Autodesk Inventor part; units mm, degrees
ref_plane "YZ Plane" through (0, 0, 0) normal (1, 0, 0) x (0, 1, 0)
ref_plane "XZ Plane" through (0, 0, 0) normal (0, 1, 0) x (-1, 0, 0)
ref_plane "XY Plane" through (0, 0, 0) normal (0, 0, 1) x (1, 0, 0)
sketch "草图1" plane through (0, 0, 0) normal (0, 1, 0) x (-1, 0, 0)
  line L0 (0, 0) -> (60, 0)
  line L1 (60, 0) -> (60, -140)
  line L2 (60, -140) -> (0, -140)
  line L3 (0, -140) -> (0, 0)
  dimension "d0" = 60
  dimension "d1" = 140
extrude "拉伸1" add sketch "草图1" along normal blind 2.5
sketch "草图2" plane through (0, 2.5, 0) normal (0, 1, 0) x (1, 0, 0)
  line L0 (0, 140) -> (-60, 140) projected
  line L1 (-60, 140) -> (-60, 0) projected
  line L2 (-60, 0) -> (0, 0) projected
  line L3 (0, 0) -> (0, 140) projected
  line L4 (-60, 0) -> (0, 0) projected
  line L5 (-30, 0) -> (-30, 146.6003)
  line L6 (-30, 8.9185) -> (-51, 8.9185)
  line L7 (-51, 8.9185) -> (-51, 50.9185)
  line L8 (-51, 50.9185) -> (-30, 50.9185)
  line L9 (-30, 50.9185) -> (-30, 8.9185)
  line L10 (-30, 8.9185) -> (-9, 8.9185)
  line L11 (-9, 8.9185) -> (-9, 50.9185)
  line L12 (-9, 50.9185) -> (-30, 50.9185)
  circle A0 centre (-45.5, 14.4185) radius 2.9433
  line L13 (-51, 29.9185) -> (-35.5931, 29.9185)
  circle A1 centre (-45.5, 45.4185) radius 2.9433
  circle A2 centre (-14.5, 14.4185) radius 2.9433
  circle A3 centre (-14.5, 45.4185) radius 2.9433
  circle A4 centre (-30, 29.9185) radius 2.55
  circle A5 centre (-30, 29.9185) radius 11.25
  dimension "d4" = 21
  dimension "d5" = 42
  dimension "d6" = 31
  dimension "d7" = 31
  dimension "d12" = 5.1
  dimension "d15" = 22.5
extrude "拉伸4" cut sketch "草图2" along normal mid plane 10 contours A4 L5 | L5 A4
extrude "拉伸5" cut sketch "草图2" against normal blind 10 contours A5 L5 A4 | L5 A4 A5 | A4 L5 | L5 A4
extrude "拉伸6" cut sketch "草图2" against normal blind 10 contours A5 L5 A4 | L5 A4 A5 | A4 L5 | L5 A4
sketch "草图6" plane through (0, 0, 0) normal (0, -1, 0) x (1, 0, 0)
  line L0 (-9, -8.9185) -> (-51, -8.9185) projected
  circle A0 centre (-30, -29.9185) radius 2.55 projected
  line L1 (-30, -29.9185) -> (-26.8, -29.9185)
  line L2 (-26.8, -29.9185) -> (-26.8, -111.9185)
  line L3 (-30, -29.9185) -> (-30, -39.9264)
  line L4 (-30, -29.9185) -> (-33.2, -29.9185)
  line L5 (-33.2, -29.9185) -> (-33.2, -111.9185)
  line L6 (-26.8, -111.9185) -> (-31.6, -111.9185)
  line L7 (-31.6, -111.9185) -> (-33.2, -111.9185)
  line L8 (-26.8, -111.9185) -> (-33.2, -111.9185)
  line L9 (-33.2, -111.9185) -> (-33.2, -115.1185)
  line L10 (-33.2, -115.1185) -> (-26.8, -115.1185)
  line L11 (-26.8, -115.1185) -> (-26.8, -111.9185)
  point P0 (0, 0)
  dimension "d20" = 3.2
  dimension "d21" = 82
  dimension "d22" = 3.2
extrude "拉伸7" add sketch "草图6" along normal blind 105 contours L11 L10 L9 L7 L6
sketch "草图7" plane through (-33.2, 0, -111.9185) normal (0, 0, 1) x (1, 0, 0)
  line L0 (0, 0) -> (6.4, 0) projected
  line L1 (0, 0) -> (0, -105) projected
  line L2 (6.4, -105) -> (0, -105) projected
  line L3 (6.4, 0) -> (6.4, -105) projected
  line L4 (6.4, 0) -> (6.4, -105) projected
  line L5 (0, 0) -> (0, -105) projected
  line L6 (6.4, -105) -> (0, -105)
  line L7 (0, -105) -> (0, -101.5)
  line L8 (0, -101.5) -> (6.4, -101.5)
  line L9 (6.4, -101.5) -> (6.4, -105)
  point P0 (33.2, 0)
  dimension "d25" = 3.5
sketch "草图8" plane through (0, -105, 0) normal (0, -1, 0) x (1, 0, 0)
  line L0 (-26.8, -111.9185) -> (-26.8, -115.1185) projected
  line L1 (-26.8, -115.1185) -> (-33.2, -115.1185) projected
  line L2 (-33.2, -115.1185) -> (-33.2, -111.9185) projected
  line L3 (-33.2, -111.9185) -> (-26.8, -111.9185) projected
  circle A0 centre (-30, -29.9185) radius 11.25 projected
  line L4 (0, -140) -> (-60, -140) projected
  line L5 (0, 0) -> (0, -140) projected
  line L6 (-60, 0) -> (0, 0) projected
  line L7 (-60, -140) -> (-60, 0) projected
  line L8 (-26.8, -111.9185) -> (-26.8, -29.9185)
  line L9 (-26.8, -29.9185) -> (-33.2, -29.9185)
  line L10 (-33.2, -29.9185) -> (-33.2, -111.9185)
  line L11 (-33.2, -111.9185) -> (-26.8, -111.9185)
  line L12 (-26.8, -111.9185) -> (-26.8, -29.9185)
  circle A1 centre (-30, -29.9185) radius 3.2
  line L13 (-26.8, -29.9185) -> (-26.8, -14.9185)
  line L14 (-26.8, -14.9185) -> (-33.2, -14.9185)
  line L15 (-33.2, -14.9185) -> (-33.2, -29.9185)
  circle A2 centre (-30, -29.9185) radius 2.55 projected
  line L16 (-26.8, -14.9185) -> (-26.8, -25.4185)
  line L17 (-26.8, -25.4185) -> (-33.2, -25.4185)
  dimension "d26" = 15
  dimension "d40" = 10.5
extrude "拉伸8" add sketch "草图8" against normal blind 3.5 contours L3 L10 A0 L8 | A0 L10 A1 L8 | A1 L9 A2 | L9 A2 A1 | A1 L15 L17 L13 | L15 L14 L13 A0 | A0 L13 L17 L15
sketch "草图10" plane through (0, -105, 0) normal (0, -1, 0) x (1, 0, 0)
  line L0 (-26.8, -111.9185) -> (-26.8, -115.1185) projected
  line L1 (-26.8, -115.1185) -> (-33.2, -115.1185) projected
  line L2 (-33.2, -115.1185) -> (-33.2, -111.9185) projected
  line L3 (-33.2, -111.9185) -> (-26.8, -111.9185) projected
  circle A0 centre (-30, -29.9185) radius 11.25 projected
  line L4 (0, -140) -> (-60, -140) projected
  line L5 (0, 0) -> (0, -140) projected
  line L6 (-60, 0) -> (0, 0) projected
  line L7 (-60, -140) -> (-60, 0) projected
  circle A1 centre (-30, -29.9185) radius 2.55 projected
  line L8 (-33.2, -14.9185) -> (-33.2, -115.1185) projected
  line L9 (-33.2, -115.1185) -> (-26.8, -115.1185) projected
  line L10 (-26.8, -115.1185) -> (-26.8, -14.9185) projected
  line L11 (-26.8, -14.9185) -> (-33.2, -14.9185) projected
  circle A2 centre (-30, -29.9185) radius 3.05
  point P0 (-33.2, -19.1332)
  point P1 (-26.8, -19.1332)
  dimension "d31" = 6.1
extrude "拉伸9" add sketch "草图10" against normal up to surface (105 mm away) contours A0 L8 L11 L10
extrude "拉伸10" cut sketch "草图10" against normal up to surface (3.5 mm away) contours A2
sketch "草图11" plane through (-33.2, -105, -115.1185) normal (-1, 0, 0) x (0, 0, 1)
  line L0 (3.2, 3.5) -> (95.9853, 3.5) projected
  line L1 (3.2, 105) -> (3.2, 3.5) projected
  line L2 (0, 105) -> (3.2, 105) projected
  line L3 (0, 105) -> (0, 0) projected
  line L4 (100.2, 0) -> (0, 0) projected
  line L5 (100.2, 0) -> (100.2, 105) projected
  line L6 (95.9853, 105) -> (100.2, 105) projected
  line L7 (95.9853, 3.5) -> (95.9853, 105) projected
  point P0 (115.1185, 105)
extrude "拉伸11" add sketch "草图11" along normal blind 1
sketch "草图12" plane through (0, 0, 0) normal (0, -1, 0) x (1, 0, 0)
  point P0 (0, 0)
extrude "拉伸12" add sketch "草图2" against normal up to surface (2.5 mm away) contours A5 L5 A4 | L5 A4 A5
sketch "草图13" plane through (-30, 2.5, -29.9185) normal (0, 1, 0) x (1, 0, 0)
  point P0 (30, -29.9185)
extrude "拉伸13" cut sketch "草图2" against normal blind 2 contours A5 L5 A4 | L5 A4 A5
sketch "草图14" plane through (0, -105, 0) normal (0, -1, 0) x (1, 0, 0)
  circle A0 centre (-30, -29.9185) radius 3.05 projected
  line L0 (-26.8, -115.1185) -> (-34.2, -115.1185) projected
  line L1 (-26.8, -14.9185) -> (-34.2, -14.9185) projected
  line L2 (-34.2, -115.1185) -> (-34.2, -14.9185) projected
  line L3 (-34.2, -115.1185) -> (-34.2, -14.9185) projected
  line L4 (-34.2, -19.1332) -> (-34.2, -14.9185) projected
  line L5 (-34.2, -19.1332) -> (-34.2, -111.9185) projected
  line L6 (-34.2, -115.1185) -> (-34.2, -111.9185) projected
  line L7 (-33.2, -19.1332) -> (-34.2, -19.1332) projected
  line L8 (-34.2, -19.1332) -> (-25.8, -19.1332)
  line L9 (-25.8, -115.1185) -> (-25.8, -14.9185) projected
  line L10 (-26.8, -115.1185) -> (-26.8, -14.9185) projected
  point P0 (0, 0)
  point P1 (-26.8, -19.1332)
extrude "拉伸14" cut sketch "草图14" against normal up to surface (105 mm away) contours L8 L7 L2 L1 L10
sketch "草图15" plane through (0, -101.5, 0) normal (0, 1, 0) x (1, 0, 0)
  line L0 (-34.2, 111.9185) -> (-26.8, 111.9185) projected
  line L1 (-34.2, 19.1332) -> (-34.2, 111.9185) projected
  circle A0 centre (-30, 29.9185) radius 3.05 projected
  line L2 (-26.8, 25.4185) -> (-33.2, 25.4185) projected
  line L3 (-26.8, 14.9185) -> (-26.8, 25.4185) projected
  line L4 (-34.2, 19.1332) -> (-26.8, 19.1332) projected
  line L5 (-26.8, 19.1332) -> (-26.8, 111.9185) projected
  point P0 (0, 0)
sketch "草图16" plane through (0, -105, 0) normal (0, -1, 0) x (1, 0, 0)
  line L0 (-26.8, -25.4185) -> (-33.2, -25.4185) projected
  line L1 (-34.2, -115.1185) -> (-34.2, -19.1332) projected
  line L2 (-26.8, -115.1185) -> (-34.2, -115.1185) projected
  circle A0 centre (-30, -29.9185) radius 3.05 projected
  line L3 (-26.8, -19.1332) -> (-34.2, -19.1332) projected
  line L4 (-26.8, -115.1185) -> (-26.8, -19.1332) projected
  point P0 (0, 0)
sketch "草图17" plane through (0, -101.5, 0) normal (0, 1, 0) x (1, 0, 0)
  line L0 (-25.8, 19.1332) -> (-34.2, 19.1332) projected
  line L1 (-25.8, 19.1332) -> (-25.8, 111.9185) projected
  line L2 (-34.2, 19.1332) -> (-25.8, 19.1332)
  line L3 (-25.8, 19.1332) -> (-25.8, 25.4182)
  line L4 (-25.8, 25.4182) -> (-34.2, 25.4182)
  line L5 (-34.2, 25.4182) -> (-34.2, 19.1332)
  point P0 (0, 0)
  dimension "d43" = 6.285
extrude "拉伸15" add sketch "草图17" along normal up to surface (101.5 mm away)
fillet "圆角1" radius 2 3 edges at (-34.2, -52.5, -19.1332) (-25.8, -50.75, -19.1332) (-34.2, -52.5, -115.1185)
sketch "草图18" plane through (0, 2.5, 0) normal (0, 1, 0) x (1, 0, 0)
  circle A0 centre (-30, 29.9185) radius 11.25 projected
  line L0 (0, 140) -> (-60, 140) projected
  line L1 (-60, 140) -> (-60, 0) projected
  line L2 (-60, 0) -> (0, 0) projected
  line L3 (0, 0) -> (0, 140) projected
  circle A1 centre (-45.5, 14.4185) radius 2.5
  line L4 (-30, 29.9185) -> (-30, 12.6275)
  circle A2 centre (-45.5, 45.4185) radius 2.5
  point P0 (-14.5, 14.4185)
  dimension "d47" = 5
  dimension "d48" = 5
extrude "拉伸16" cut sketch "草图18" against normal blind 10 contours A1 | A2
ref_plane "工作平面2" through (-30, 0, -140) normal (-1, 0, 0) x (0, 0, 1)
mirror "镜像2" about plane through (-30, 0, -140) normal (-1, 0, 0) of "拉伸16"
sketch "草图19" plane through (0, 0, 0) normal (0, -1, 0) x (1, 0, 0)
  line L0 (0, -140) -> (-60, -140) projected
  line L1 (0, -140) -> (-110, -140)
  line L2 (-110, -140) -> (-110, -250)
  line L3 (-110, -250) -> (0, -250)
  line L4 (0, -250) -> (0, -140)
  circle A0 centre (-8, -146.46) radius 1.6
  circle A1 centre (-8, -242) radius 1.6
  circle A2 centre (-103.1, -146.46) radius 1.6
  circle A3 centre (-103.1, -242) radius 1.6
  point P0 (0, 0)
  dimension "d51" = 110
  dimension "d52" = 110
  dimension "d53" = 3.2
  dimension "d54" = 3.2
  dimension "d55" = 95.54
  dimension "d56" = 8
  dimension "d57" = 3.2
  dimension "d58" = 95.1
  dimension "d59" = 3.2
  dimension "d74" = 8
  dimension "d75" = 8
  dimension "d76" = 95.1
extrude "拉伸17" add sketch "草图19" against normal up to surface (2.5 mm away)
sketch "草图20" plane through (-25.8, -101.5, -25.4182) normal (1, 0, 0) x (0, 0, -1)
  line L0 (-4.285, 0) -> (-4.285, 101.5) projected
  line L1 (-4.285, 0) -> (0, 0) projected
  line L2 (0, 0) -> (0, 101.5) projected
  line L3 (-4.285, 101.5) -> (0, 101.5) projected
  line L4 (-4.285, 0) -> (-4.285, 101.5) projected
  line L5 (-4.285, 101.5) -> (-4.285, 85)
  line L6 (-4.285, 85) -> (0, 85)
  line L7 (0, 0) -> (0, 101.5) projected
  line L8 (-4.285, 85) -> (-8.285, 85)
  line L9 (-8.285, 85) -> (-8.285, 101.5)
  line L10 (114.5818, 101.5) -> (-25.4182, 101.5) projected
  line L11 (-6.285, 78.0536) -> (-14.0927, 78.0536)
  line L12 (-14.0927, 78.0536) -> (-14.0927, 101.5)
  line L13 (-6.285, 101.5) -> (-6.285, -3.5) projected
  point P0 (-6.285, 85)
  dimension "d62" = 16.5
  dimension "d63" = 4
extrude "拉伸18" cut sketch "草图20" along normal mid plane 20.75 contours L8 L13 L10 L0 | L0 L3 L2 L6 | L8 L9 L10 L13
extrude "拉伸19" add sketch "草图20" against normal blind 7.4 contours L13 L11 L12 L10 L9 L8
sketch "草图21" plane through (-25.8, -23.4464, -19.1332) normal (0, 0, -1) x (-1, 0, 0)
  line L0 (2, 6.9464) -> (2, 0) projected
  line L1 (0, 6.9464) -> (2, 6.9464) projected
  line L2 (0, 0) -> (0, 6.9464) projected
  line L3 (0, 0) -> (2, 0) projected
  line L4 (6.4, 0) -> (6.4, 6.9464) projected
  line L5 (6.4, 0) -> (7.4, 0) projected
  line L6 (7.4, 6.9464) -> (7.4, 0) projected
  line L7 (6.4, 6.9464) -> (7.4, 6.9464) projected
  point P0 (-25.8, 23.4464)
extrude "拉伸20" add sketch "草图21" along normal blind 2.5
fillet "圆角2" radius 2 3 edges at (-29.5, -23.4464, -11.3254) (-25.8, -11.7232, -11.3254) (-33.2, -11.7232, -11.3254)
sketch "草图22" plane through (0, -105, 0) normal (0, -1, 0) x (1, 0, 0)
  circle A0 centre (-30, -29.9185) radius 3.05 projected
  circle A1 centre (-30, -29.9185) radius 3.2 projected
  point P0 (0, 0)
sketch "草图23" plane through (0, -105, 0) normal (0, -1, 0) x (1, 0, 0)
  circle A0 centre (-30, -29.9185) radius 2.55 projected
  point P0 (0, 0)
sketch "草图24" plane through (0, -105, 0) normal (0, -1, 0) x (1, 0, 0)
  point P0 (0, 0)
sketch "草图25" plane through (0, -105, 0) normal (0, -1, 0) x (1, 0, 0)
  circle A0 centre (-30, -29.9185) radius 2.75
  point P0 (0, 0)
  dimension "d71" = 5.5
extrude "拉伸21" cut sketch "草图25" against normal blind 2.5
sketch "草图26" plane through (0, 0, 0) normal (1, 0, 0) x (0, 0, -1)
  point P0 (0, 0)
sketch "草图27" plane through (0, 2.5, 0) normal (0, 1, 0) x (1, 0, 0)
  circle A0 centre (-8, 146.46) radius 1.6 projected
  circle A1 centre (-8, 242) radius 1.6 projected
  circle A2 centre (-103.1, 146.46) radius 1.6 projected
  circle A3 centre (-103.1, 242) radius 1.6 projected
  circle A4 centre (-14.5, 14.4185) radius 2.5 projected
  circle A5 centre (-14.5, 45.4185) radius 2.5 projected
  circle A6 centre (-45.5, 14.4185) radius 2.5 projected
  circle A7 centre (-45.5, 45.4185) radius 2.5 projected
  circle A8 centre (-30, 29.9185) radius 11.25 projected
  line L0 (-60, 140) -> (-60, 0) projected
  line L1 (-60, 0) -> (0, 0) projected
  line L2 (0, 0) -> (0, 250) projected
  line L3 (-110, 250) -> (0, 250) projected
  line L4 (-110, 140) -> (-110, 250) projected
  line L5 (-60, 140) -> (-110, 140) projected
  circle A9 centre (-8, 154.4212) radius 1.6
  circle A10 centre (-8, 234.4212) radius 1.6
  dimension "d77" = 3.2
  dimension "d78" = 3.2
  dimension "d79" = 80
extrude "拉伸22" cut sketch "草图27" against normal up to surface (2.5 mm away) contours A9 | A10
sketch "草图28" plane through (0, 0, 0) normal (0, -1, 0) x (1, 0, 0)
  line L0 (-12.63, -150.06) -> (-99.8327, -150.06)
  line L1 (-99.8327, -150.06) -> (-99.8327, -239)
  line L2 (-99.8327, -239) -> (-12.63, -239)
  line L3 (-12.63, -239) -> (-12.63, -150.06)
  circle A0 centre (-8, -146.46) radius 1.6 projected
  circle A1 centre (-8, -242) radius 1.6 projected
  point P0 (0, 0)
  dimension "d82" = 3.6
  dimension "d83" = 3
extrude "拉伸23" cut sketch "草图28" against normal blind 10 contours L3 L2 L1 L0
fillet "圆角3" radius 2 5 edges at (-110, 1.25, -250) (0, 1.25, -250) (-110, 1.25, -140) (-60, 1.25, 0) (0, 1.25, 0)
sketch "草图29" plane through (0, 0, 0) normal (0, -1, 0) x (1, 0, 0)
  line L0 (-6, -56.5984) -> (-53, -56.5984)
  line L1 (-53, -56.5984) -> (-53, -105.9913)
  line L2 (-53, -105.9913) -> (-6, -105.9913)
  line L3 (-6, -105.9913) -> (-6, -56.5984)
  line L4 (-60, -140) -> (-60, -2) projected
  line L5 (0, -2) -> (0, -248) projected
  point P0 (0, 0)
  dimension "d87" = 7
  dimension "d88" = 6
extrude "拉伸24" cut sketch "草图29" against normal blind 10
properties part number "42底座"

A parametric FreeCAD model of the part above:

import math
import FreeCAD as App
import Part
import Sketcher

V = App.Vector
Q = App.Units.Quantity


def edges_at(feature, points):
    """Names of the edges that pass closest to the given points."""
    edges = feature.Shape.Edges
    near = lambda p: min(range(len(edges)), key=lambda i: edges[i].distToShape(Part.Vertex(*p))[0])
    return sorted({f"Edge{near(p) + 1}" for p in points})

doc = App.newDocument("Part")
body = doc.addObject("PartDesign::Body", "Body")

sketch1 = body.newObject("Sketcher::SketchObject", "Sketch")
sketch1.AttachmentSupport = (doc.getObject("XZ_Plane"), [""])
sketch1.MapMode = "FlatFace"
sketch1.addGeometry([
    Part.LineSegment(V(-60, 0, 0), V(0, 0, 0)),
    Part.LineSegment(V(0, 0, 0), V(0, -140, 0)),
    Part.LineSegment(V(0, -140, 0), V(-60, -140, 0)),
    Part.LineSegment(V(-60, -140, 0), V(-60, 0, 0)),
], False)
sketch1.addConstraint([
    Sketcher.Constraint("Coincident", 0, 2, 1, 1),
    Sketcher.Constraint("Coincident", 1, 2, 2, 1),
    Sketcher.Constraint("Coincident", 2, 2, 3, 1),
    Sketcher.Constraint("Coincident", 3, 2, 0, 1),
    Sketcher.Constraint("Horizontal", 0),
    Sketcher.Constraint("Vertical", 1),
    Sketcher.Constraint("Horizontal", 2),
    Sketcher.Constraint("Vertical", 3),
    Sketcher.Constraint("Coincident", 0, 2, -1, 1),
    Sketcher.Constraint("DistanceX", 0, 1, 0, 2, Q("60 mm")),
    Sketcher.Constraint("DistanceY", 1, 2, 1, 1, Q("140 mm")),
])
pad1 = body.newObject("PartDesign::Pad", "Pad")
pad1.Profile = sketch1
pad1.Length = 2.5
pad1.Reversed = True

sketch2 = body.newObject("Sketcher::SketchObject", "Sketch001")
sketch2.AttachmentSupport = (doc.getObject("XZ_Plane"), [""])
sketch2.MapMode = "FlatFace"
sketch2.AttachmentOffset = App.Placement(V(0, 0, -2.5), App.Rotation())
sketch2.addGeometry(Part.Circle(V(-30, -29.9, 0), V(0, 0, 1), 2.5), False)
sketch2.addConstraint([
    Sketcher.Constraint("Diameter", 0, Q("5.1 mm")),
    Sketcher.Constraint("DistanceX", 0, 3, -1, 1, Q("30 mm")),
    Sketcher.Constraint("DistanceY", 0, 3, -1, 1, Q("29.9185 mm")),
])
pocket1 = body.newObject("PartDesign::Pocket", "Pocket")
pocket1.Profile = sketch2
pocket1.Length = 10
pocket1.Midplane = True

sketch3 = body.newObject("Sketcher::SketchObject", "Sketch002")
sketch3.AttachmentSupport = (doc.getObject("XZ_Plane"), [""])
sketch3.MapMode = "FlatFace"
sketch3.AttachmentOffset = App.Placement(V(0, 0, -2.5), App.Rotation())
sketch3.addGeometry(Part.Circle(V(-30, -30, 0), V(0, 0, 1), 11), False)
sketch3.addConstraint([
    Sketcher.Constraint("Diameter", 0, Q("22.5 mm")),
    Sketcher.Constraint("DistanceX", 0, 3, -1, 1, Q("30 mm")),
    Sketcher.Constraint("DistanceY", 0, 3, -1, 1, Q("29.9185 mm")),
])
pocket2 = body.newObject("PartDesign::Pocket", "Pocket001")
pocket2.Profile = sketch3
pocket2.Length = 10
pocket2.Reversed = True

sketch4 = body.newObject("Sketcher::SketchObject", "Sketch003")
sketch4.AttachmentSupport = (doc.getObject("XZ_Plane"), [""])
sketch4.MapMode = "FlatFace"
sketch4.AttachmentOffset = App.Placement(V(0, 0, -2.5), App.Rotation())
sketch4.addGeometry(Part.Circle(V(-30, -30, 0), V(0, 0, 1), 11), False)
sketch4.addConstraint([
    Sketcher.Constraint("Diameter", 0, Q("22.5 mm")),
    Sketcher.Constraint("DistanceX", 0, 3, -1, 1, Q("30 mm")),
    Sketcher.Constraint("DistanceY", 0, 3, -1, 1, Q("29.9185 mm")),
])
pocket3 = body.newObject("PartDesign::Pocket", "Pocket002")
pocket3.Profile = sketch4
pocket3.Length = 10
pocket3.Reversed = True

sketch5 = body.newObject("Sketcher::SketchObject", "Sketch004")
sketch5.AttachmentSupport = (doc.getObject("XZ_Plane"), [""])
sketch5.MapMode = "FlatFace"
sketch5.addGeometry([
    Part.LineSegment(V(-26.8, -115.1, 0), V(-26.8, -111.9, 0)),
    Part.LineSegment(V(-26.8, -111.9, 0), V(-33.2, -111.9, 0)),
    Part.LineSegment(V(-33.2, -111.9, 0), V(-33.2, -115.1, 0)),
    Part.LineSegment(V(-33.2, -115.1, 0), V(-26.8, -115.1, 0)),
], False)
sketch5.addConstraint([
    Sketcher.Constraint("Coincident", 0, 2, 1, 1),
    Sketcher.Constraint("Coincident", 1, 2, 2, 1),
    Sketcher.Constraint("Coincident", 2, 2, 3, 1),
    Sketcher.Constraint("Coincident", 3, 2, 0, 1),
    Sketcher.Constraint("Vertical", 0),
    Sketcher.Constraint("Horizontal", 1),
    Sketcher.Constraint("Vertical", 2),
    Sketcher.Constraint("Horizontal", 3),
    Sketcher.Constraint("DistanceY", 0, 1, 0, 2, Q("3.2 mm")),
    Sketcher.Constraint("DistanceX", 1, 2, 1, 1, Q("6.4 mm")),
    Sketcher.Constraint("DistanceX", 0, 2, -1, 1, Q("26.8 mm")),
    Sketcher.Constraint("DistanceY", 0, 2, -1, 1, Q("111.9185 mm")),
])
pad2 = body.newObject("PartDesign::Pad", "Pad001")
pad2.Profile = sketch5
pad2.Length = 105

sketch6 = body.newObject("Sketcher::SketchObject", "Sketch005")
sketch6.AttachmentSupport = (doc.getObject("XZ_Plane"), [""])
sketch6.MapMode = "FlatFace"
sketch6.AttachmentOffset = App.Placement(V(0, 0, 105), App.Rotation())
sketch6.addGeometry([
    Part.LineSegment(V(-33.2, -111.9, 0), V(-26.8, -111.9, 0)),
    Part.LineSegment(V(-26.8, -111.9, 0), V(-26.8, -14.9, 0)),
    Part.LineSegment(V(-26.8, -14.9, 0), V(-33.2, -14.9, 0)),
    Part.LineSegment(V(-33.2, -14.9, 0), V(-33.2, -111.9, 0)),
    Part.Circle(V(-30, -29.9, 0), V(0, 0, 1), 2.5),
], False)
sketch6.addConstraint([
    Sketcher.Constraint("Coincident", 0, 2, 1, 1),
    Sketcher.Constraint("Coincident", 1, 2, 2, 1),
    Sketcher.Constraint("Coincident", 2, 2, 3, 1),
    Sketcher.Constraint("Coincident", 3, 2, 0, 1),
    Sketcher.Constraint("Horizontal", 0),
    Sketcher.Constraint("Vertical", 1),
    Sketcher.Constraint("Horizontal", 2),
    Sketcher.Constraint("Vertical", 3),
    Sketcher.Constraint("DistanceY", 4, 3, 1, 2, Q("15 mm")),
    Sketcher.Constraint("Diameter", 4, Q("5.1 mm")),
    Sketcher.Constraint("DistanceY", 1, 1, 1, 2, Q("97 mm")),
    Sketcher.Constraint("DistanceX", 0, 1, 0, 2, Q("6.4 mm")),
    Sketcher.Constraint("DistanceX", 4, 3, -1, 1, Q("30 mm")),
    Sketcher.Constraint("DistanceX", 0, 2, -1, 1, Q("26.8 mm")),
    Sketcher.Constraint("DistanceY", 4, 3, -1, 1, Q("29.9185 mm")),
])
pad3 = body.newObject("PartDesign::Pad", "Pad002")
pad3.Profile = sketch6
pad3.Length = 3.5
pad3.Reversed = True

sketch7 = body.newObject("Sketcher::SketchObject", "Sketch006")
sketch7.AttachmentSupport = (doc.getObject("XZ_Plane"), [""])
sketch7.MapMode = "FlatFace"
sketch7.AttachmentOffset = App.Placement(V(0, 0, 105), App.Rotation())
sketch7.addGeometry([
    Part.ArcOfCircle(Part.Circle(V(-30, -29.9, 0), V(0, 0, 1), 11.2), math.radians(73), math.radians(107)),
    Part.LineSegment(V(-26.8, -19.1, 0), V(-26.8, -14.9, 0)),
    Part.LineSegment(V(-26.8, -14.9, 0), V(-33.2, -14.9, 0)),
    Part.LineSegment(V(-33.2, -14.9, 0), V(-33.2, -19.1, 0)),
], False)
sketch7.addConstraint([
    Sketcher.Constraint("Coincident", 0, 1, 1, 1),
    Sketcher.Constraint("Coincident", 1, 2, 2, 1),
    Sketcher.Constraint("Coincident", 2, 2, 3, 1),
    Sketcher.Constraint("Coincident", 3, 2, 0, 2),
    Sketcher.Constraint("Vertical", 1),
    Sketcher.Constraint("Horizontal", 2),
    Sketcher.Constraint("Vertical", 3),
    Sketcher.Constraint("Horizontal", 0, 1, 3, 2),
    Sketcher.Constraint("Radius", 0, Q("11.25 mm")),
    Sketcher.Constraint("DistanceX", 2, 2, 2, 1, Q("6.4 mm")),
    Sketcher.Constraint("DistanceX", 0, 3, -1, 1, Q("30 mm")),
    Sketcher.Constraint("DistanceY", 0, 3, 1, 2, Q("15 mm")),
    Sketcher.Constraint("DistanceY", 0, 3, -1, 1, Q("29.9185 mm")),
])
pad4 = body.newObject("PartDesign::Pad", "Pad003")
pad4.Profile = sketch7
pad4.Length = 105
pad4.Reversed = True

sketch8 = body.newObject("Sketcher::SketchObject", "Sketch007")
sketch8.AttachmentSupport = (doc.getObject("XZ_Plane"), [""])
sketch8.MapMode = "FlatFace"
sketch8.AttachmentOffset = App.Placement(V(0, 0, 105), App.Rotation())
sketch8.addGeometry([
    Part.Circle(V(-30, -29.9, 0), V(0, 0, 1), 3),
    Part.Circle(V(-30, -29.9, 0), V(0, 0, 1), 2.5),
], False)
sketch8.addConstraint([
    Sketcher.Constraint("Coincident", 1, 3, 0, 3),
    Sketcher.Constraint("Diameter", 0, Q("6.1 mm")),
    Sketcher.Constraint("Diameter", 1, Q("5.1 mm")),
    Sketcher.Constraint("DistanceX", 0, 3, -1, 1, Q("30 mm")),
    Sketcher.Constraint("DistanceY", 0, 3, -1, 1, Q("29.9185 mm")),
])
pocket4 = body.newObject("PartDesign::Pocket", "Pocket003")
pocket4.Profile = sketch8
pocket4.Length = 3.5

sketch9 = body.newObject("Sketcher::SketchObject", "Sketch008")
sketch9.AttachmentSupport = (doc.getObject("YZ_Plane"), [""])
sketch9.MapMode = "FlatFace"
sketch9.AttachmentOffset = App.Placement(V(0, 0, -33.2), App.Rotation())
sketch9.addGeometry([
    Part.LineSegment(V(-101.5, -19.1, 0), V(-101.5, -111.9, 0)),
    Part.LineSegment(V(-101.5, -111.9, 0), V(0, -111.9, 0)),
    Part.LineSegment(V(0, -111.9, 0), V(0, -115.1, 0)),
    Part.LineSegment(V(0, -115.1, 0), V(-105, -115.1, 0)),
    Part.LineSegment(V(-105, -115.1, 0), V(-105, -14.9, 0)),
    Part.LineSegment(V(-105, -14.9, 0), V(0, -14.9, 0)),
    Part.LineSegment(V(0, -14.9, 0), V(0, -19.1, 0)),
    Part.LineSegment(V(0, -19.1, 0), V(-101.5, -19.1, 0)),
], False)
sketch9.addConstraint([
    Sketcher.Constraint("Coincident", 0, 2, 1, 1),
    Sketcher.Constraint("Coincident", 1, 2, 2, 1),
    Sketcher.Constraint("Coincident", 2, 2, 3, 1),
    Sketcher.Constraint("Coincident", 3, 2, 4, 1),
    Sketcher.Constraint("Coincident", 4, 2, 5, 1),
    Sketcher.Constraint("Coincident", 5, 2, 6, 1),
    Sketcher.Constraint("Coincident", 6, 2, 7, 1),
    Sketcher.Constraint("Coincident", 7, 2, 0, 1),
    Sketcher.Constraint("Vertical", 0),
    Sketcher.Constraint("Horizontal", 1),
    Sketcher.Constraint("Vertical", 2),
    Sketcher.Constraint("Horizontal", 3),
    Sketcher.Constraint("Vertical", 4),
    Sketcher.Constraint("Horizontal", 5),
    Sketcher.Constraint("Vertical", 6),
    Sketcher.Constraint("Horizontal", 7),
    Sketcher.Constraint("PointOnObject", 1, 2, -2),
    Sketcher.Constraint("PointOnObject", 5, 2, -2),
    Sketcher.Constraint("DistanceX", 3, 2, 3, 1, Q("105 mm")),
    Sketcher.Constraint("DistanceX", 1, 1, 1, 2, Q("101.5 mm")),
    Sketcher.Constraint("DistanceY", 2, 2, 2, 1, Q("3.2 mm")),
    Sketcher.Constraint("DistanceY", 4, 1, 4, 2, Q("100.2 mm")),
    Sketcher.Constraint("DistanceY", 0, 2, 0, 1, Q("92.7853 mm")),
    Sketcher.Constraint("DistanceY", 0, 2, -1, 1, Q("111.9185 mm")),
])
pad5 = body.newObject("PartDesign::Pad", "Pad004")
pad5.Profile = sketch9
pad5.Length = 1
pad5.Reversed = True

sketch10 = body.newObject("Sketcher::SketchObject", "Sketch009")
sketch10.AttachmentSupport = (doc.getObject("XZ_Plane"), [""])
sketch10.MapMode = "FlatFace"
sketch10.AttachmentOffset = App.Placement(V(0, 0, -2.5), App.Rotation())
sketch10.addGeometry([
    Part.Circle(V(-30, -29.9, 0), V(0, 0, 1), 11.2),
    Part.Circle(V(-30, -29.9, 0), V(0, 0, 1), 2.5),
], False)
sketch10.addConstraint([
    Sketcher.Constraint("Coincident", 1, 3, 0, 3),
    Sketcher.Constraint("Diameter", 0, Q("22.5 mm")),
    Sketcher.Constraint("Diameter", 1, Q("5.1 mm")),
    Sketcher.Constraint("DistanceX", 0, 3, -1, 1, Q("30 mm")),
    Sketcher.Constraint("DistanceY", 0, 3, -1, 1, Q("29.9185 mm")),
])
pad6 = body.newObject("PartDesign::Pad", "Pad005")
pad6.Profile = sketch10
pad6.Length = 2.5

sketch11 = body.newObject("Sketcher::SketchObject", "Sketch010")
sketch11.AttachmentSupport = (doc.getObject("XZ_Plane"), [""])
sketch11.MapMode = "FlatFace"
sketch11.AttachmentOffset = App.Placement(V(0, 0, -2.5), App.Rotation())
sketch11.addGeometry([
    Part.Circle(V(-30, -29.9, 0), V(0, 0, 1), 11.2),
    Part.Circle(V(-30, -29.9, 0), V(0, 0, 1), 2.5),
], False)
sketch11.addConstraint([
    Sketcher.Constraint("Coincident", 1, 3, 0, 3),
    Sketcher.Constraint("Diameter", 0, Q("22.5 mm")),
    Sketcher.Constraint("Diameter", 1, Q("5.1 mm")),
    Sketcher.Constraint("DistanceX", 0, 3, -1, 1, Q("30 mm")),
    Sketcher.Constraint("DistanceY", 0, 3, -1, 1, Q("29.9185 mm")),
])
pocket5 = body.newObject("PartDesign::Pocket", "Pocket004")
pocket5.Profile = sketch11
pocket5.Length = 2
pocket5.Reversed = True

sketch12 = body.newObject("Sketcher::SketchObject", "Sketch011")
sketch12.AttachmentSupport = (doc.getObject("XZ_Plane"), [""])
sketch12.MapMode = "FlatFace"
sketch12.AttachmentOffset = App.Placement(V(0, 0, 105), App.Rotation())
sketch12.addGeometry([
    Part.LineSegment(V(-34.2, -19.1, 0), V(-26.8, -19.1, 0)),
    Part.LineSegment(V(-26.8, -19.1, 0), V(-26.8, -14.9, 0)),
    Part.LineSegment(V(-26.8, -14.9, 0), V(-34.2, -14.9, 0)),
    Part.LineSegment(V(-34.2, -14.9, 0), V(-34.2, -19.1, 0)),
], False)
sketch12.addConstraint([
    Sketcher.Constraint("Coincident", 0, 2, 1, 1),
    Sketcher.Constraint("Coincident", 1, 2, 2, 1),
    Sketcher.Constraint("Coincident", 2, 2, 3, 1),
    Sketcher.Constraint("Coincident", 3, 2, 0, 1),
    Sketcher.Constraint("Horizontal", 0),
    Sketcher.Constraint("Vertical", 1),
    Sketcher.Constraint("Horizontal", 2),
    Sketcher.Constraint("Vertical", 3),
    Sketcher.Constraint("DistanceX", 0, 1, 0, 2, Q("7.4 mm")),
    Sketcher.Constraint("DistanceX", 0, 2, -1, 1, Q("26.8 mm")),
    Sketcher.Constraint("DistanceY", 1, 1, 1, 2, Q("4.2147 mm")),
    Sketcher.Constraint("DistanceY", 0, 2, -1, 1, Q("19.1332 mm")),
])
pocket6 = body.newObject("PartDesign::Pocket", "Pocket005")
pocket6.Profile = sketch12
pocket6.Length = 105

sketch13 = body.newObject("Sketcher::SketchObject", "Sketch012")
sketch13.AttachmentSupport = (doc.getObject("XZ_Plane"), [""])
sketch13.MapMode = "FlatFace"
sketch13.AttachmentOffset = App.Placement(V(0, 0, 101.5), App.Rotation())
sketch13.addGeometry([
    Part.LineSegment(V(-34, -19, 0), V(-26, -19, 0)),
    Part.LineSegment(V(-26, -19, 0), V(-26, -25, 0)),
    Part.LineSegment(V(-26, -25, 0), V(-34, -25, 0)),
    Part.LineSegment(V(-34, -25, 0), V(-34, -19, 0)),
], False)
sketch13.addConstraint([
    Sketcher.Constraint("Coincident", 0, 2, 1, 1),
    Sketcher.Constraint("Coincident", 1, 2, 2, 1),
    Sketcher.Constraint("Coincident", 2, 2, 3, 1),
    Sketcher.Constraint("Coincident", 3, 2, 0, 1),
    Sketcher.Constraint("Horizontal", 0),
    Sketcher.Constraint("Vertical", 1),
    Sketcher.Constraint("Horizontal", 2),
    Sketcher.Constraint("Vertical", 3),
    Sketcher.Constraint("DistanceY", 1, 2, 1, 1, Q("6.285 mm")),
    Sketcher.Constraint("DistanceX", 0, 1, 0, 2, Q("8.4 mm")),
    Sketcher.Constraint("DistanceX", 0, 2, -1, 1, Q("25.8 mm")),
    Sketcher.Constraint("DistanceY", 0, 2, -1, 1, Q("19.1332 mm")),
])
pad7 = body.newObject("PartDesign::Pad", "Pad006")
pad7.Profile = sketch13
pad7.Length = 101.5
pad7.Reversed = True
doc.recompute()

fillet = body.newObject("PartDesign::Fillet", "Fillet")
fillet.Base = (pad7, edges_at(pad7, [(-34.2, -52.5, -19.133), (-25.8, -50.75, -19.133), (-34.2, -52.5, -115.118)]))
fillet.Radius = 2

sketch14 = body.newObject("Sketcher::SketchObject", "Sketch013")
sketch14.AttachmentSupport = (doc.getObject("XZ_Plane"), [""])
sketch14.MapMode = "FlatFace"
sketch14.AttachmentOffset = App.Placement(V(0, 0, -2.5), App.Rotation())
sketch14.addGeometry([
    Part.Circle(V(-45.5, -14.4, 0), V(0, 0, 1), 2.5),
    Part.Circle(V(-45.5, -45.4, 0), V(0, 0, 1), 2.5),
], False)
sketch14.addConstraint([
    Sketcher.Constraint("Equal", 0, 1),
    Sketcher.Constraint("Vertical", 0, 3, 1, 3),
    Sketcher.Constraint("Diameter", 0, Q("5 mm")),
    Sketcher.Constraint("DistanceY", 1, 3, 0, 3, Q("31 mm")),
    Sketcher.Constraint("DistanceX", 0, 3, -1, 1, Q("45.5 mm")),
    Sketcher.Constraint("DistanceY", 0, 3, -1, 1, Q("14.4185 mm")),
])
pocket7 = body.newObject("PartDesign::Pocket", "Pocket006")
pocket7.Profile = sketch14
pocket7.Length = 10
pocket7.Reversed = True
doc.recompute()

datumplane = body.newObject("PartDesign::Plane", "DatumPlane")
datumplane.AttachmentSupport = (doc.getObject("YZ_Plane"), [""])
datumplane.MapMode = "FlatFace"
datumplane.AttachmentOffset = App.Placement(V(0, 0, -30), App.Rotation())
mirrored = body.newObject("PartDesign::Mirrored", "Mirrored")
mirrored.Originals = [pocket7]
mirrored.MirrorPlane = (datumplane, [""])
body.Tip = mirrored

sketch15 = body.newObject("Sketcher::SketchObject", "Sketch014")
sketch15.AttachmentSupport = (doc.getObject("XZ_Plane"), [""])
sketch15.MapMode = "FlatFace"
sketch15.addGeometry([
    Part.LineSegment(V(0, -250, 0), V(0, -140, 0)),
    Part.LineSegment(V(0, -140, 0), V(-110, -140, 0)),
    Part.LineSegment(V(-110, -140, 0), V(-110, -250, 0)),
    Part.LineSegment(V(-110, -250, 0), V(0, -250, 0)),
    Part.Circle(V(-103.1, -242, 0), V(0, 0, 1), 1.6),
    Part.Circle(V(-8, -242, 0), V(0, 0, 1), 1.6),
    Part.Circle(V(-103.1, -146.5, 0), V(0, 0, 1), 1.6),
    Part.Circle(V(-8, -146.5, 0), V(0, 0, 1), 1.6),
], False)
sketch15.addConstraint([
    Sketcher.Constraint("Coincident", 0, 2, 1, 1),
    Sketcher.Constraint("Coincident", 1, 2, 2, 1),
    Sketcher.Constraint("Coincident", 2, 2, 3, 1),
    Sketcher.Constraint("Coincident", 3, 2, 0, 1),
    Sketcher.Constraint("Vertical", 0),
    Sketcher.Constraint("Horizontal", 1),
    Sketcher.Constraint("Vertical", 2),
    Sketcher.Constraint("Horizontal", 3),
    Sketcher.Constraint("Equal", 4, 5),
    Sketcher.Constraint("Equal", 5, 6),
    Sketcher.Constraint("Equal", 6, 7),
    Sketcher.Constraint("PointOnObject", 0, 2, -2),
    Sketcher.Constraint("Horizontal", 4, 3, 5, 3),
    Sketcher.Constraint("Horizontal", 6, 3, 7, 3),
    Sketcher.Constraint("Vertical", 4, 3, 6, 3),
    Sketcher.Constraint("Vertical", 5, 3, 7, 3),
    Sketcher.Constraint("Equal", 3, 0),
    Sketcher.Constraint("Diameter", 4, Q("3.2 mm")),
    Sketcher.Constraint("DistanceX", 1, 2, 1, 1, Q("110 mm")),
    Sketcher.Constraint("DistanceX", 5, 3, -1, 1, Q("8 mm")),
    Sketcher.Constraint("DistanceY", 2, 2, 4, 3, Q("8 mm")),
    Sketcher.Constraint("DistanceX", 4, 3, 5, 3, Q("95.1 mm")),
    Sketcher.Constraint("DistanceY", 4, 3, 6, 3, Q("95.54 mm")),
    Sketcher.Constraint("DistanceY", 4, 3, -1, 1, Q("242 mm")),
])
pad8 = body.newObject("PartDesign::Pad", "Pad007")
pad8.Profile = sketch15
pad8.Length = 2.5
pad8.Reversed = True

sketch16 = body.newObject("Sketcher::SketchObject", "Sketch015")
sketch16.AttachmentSupport = (doc.getObject("YZ_Plane"), [""])
sketch16.MapMode = "FlatFace"
sketch16.AttachmentOffset = App.Placement(V(0, 0, -25.8), App.Rotation())
sketch16.addGeometry([
    Part.LineSegment(V(-16, -25, 0), V(0, -25, 0)),
    Part.LineSegment(V(0, -25, 0), V(0, -17, 0)),
    Part.LineSegment(V(0, -17, 0), V(-16, -17, 0)),
    Part.LineSegment(V(-16, -17, 0), V(-16, -25, 0)),
], False)
sketch16.addConstraint([
    Sketcher.Constraint("Coincident", 0, 2, 1, 1),
    Sketcher.Constraint("Coincident", 1, 2, 2, 1),
    Sketcher.Constraint("Coincident", 2, 2, 3, 1),
    Sketcher.Constraint("Coincident", 3, 2, 0, 1),
    Sketcher.Constraint("Horizontal", 0),
    Sketcher.Constraint("Vertical", 1),
    Sketcher.Constraint("Horizontal", 2),
    Sketcher.Constraint("Vertical", 3),
    Sketcher.Constraint("PointOnObject", 0, 2, -2),
    Sketcher.Constraint("DistanceX", 0, 1, 0, 2, Q("16.5 mm")),
    Sketcher.Constraint("DistanceY", 1, 1, 1, 2, Q("8.285 mm")),
    Sketcher.Constraint("DistanceY", 0, 2, -1, 1, Q("25.4182 mm")),
])
pocket8 = body.newObject("PartDesign::Pocket", "Pocket007")
pocket8.Profile = sketch16
pocket8.Length = 20.75
pocket8.Midplane = True

sketch17 = body.newObject("Sketcher::SketchObject", "Sketch016")
sketch17.AttachmentSupport = (doc.getObject("YZ_Plane"), [""])
sketch17.MapMode = "FlatFace"
sketch17.AttachmentOffset = App.Placement(V(0, 0, -25.8), App.Rotation())
sketch17.addGeometry([
    Part.LineSegment(V(-23.4, -19.1, 0), V(-16.5, -19.1, 0)),
    Part.LineSegment(V(-16.5, -19.1, 0), V(-16.5, -17.1, 0)),
    Part.LineSegment(V(-16.5, -17.1, 0), V(0, -17.1, 0)),
    Part.LineSegment(V(0, -17.1, 0), V(0, -11.3, 0)),
    Part.LineSegment(V(0, -11.3, 0), V(-23.4, -11.3, 0)),
    Part.LineSegment(V(-23.4, -11.3, 0), V(-23.4, -19.1, 0)),
], False)
sketch17.addConstraint([
    Sketcher.Constraint("Coincident", 0, 2, 1, 1),
    Sketcher.Constraint("Coincident", 1, 2, 2, 1),
    Sketcher.Constraint("Coincident", 2, 2, 3, 1),
    Sketcher.Constraint("Coincident", 3, 2, 4, 1),
    Sketcher.Constraint("Coincident", 4, 2, 5, 1),
    Sketcher.Constraint("Coincident", 5, 2, 0, 1),
    Sketcher.Constraint("Horizontal", 0),
    Sketcher.Constraint("Vertical", 1),
    Sketcher.Constraint("Horizontal", 2),
    Sketcher.Constraint("Vertical", 3),
    Sketcher.Constraint("Horizontal", 4),
    Sketcher.Constraint("Vertical", 5),
    Sketcher.Constraint("PointOnObject", 2, 2, -2),
    Sketcher.Constraint("DistanceX", 2, 1, 2, 2, Q("16.5 mm")),
    Sketcher.Constraint("DistanceY", 1, 1, 1, 2, Q("2 mm")),
    Sketcher.Constraint("DistanceX", 0, 1, 0, 2, Q("6.9464 mm")),
    Sketcher.Constraint("DistanceY", 3, 1, 3, 2, Q("5.8077 mm")),
    Sketcher.Constraint("DistanceY", 0, 2, -1, 1, Q("19.1332 mm")),
])
pad9 = body.newObject("PartDesign::Pad", "Pad008")
pad9.Profile = sketch17
pad9.Length = 7.4
pad9.Reversed = True

sketch18 = body.newObject("Sketcher::SketchObject", "Sketch017")
sketch18.AttachmentSupport = (doc.getObject("XY_Plane"), [""])
sketch18.MapMode = "FlatFace"
sketch18.AttachmentOffset = App.Placement(V(0, 0, -19.1332), App.Rotation())
sketch18.addGeometry([
    Part.LineSegment(V(-27.8, -23.4, 0), V(-27.8, -16.5, 0)),
    Part.LineSegment(V(-27.8, -16.5, 0), V(-25.8, -16.5, 0)),
    Part.LineSegment(V(-25.8, -16.5, 0), V(-25.8, -23.4, 0)),
    Part.LineSegment(V(-25.8, -23.4, 0), V(-27.8, -23.4, 0)),
    Part.LineSegment(V(-32.2, -16.5, 0), V(-32.2, -23.4, 0)),
    Part.LineSegment(V(-32.2, -23.4, 0), V(-33.2, -23.4, 0)),
    Part.LineSegment(V(-33.2, -23.4, 0), V(-33.2, -16.5, 0)),
    Part.LineSegment(V(-33.2, -16.5, 0), V(-32.2, -16.5, 0)),
], False)
sketch18.addConstraint([
    Sketcher.Constraint("Coincident", 0, 2, 1, 1),
    Sketcher.Constraint("Coincident", 1, 2, 2, 1),
    Sketcher.Constraint("Coincident", 2, 2, 3, 1),
    Sketcher.Constraint("Coincident", 3, 2, 0, 1),
    Sketcher.Constraint("Coincident", 4, 2, 5, 1),
    Sketcher.Constraint("Coincident", 5, 2, 6, 1),
    Sketcher.Constraint("Coincident", 6, 2, 7, 1),
    Sketcher.Constraint("Coincident", 7, 2, 4, 1),
    Sketcher.Constraint("Vertical", 0),
    Sketcher.Constraint("Horizontal", 1),
    Sketcher.Constraint("Vertical", 2),
    Sketcher.Constraint("Horizontal", 3),
    Sketcher.Constraint("Vertical", 4),
    Sketcher.Constraint("Horizontal", 5),
    Sketcher.Constraint("Vertical", 6),
    Sketcher.Constraint("Horizontal", 7),
    Sketcher.Constraint("Horizontal", 3, 2, 4, 2),
    Sketcher.Constraint("Horizontal", 1, 2, 6, 2),
    Sketcher.Constraint("DistanceX", 1, 1, 1, 2, Q("2 mm")),
    Sketcher.Constraint("DistanceX", 5, 2, 5, 1, Q("1 mm")),
    Sketcher.Constraint("DistanceX", 0, 2, -1, 1, Q("27.8 mm")),
    Sketcher.Constraint("DistanceY", 0, 2, -1, 1, Q("16.5 mm")),
    Sketcher.Constraint("DistanceX", 4, 2, -1, 1, Q("32.2 mm")),
    Sketcher.Constraint("DistanceY", 0, 1, 0, 2, Q("6.9464 mm")),
])
pad10 = body.newObject("PartDesign::Pad", "Pad009")
pad10.Profile = sketch18
pad10.Length = 2.5
pad10.Reversed = True
doc.recompute()

fillet2 = body.newObject("PartDesign::Fillet", "Fillet001")
fillet2.Base = (pad10, edges_at(pad10, [(-29.5, -23.446, -11.325), (-25.8, -11.723, -11.325), (-33.2, -11.723, -11.325)]))
fillet2.Radius = 2

sketch19 = body.newObject("Sketcher::SketchObject", "Sketch018")
sketch19.AttachmentSupport = (doc.getObject("XZ_Plane"), [""])
sketch19.MapMode = "FlatFace"
sketch19.AttachmentOffset = App.Placement(V(0, 0, 105), App.Rotation())
sketch19.addGeometry(Part.Circle(V(-30, -29.9, 0), V(0, 0, 1), 2.8), False)
sketch19.addConstraint([
    Sketcher.Constraint("Diameter", 0, Q("5.5 mm")),
    Sketcher.Constraint("DistanceX", 0, 3, -1, 1, Q("30 mm")),
    Sketcher.Constraint("DistanceY", 0, 3, -1, 1, Q("29.9185 mm")),
])
pocket9 = body.newObject("PartDesign::Pocket", "Pocket008")
pocket9.Profile = sketch19
pocket9.Length = 2.5

sketch20 = body.newObject("Sketcher::SketchObject", "Sketch019")
sketch20.AttachmentSupport = (doc.getObject("XZ_Plane"), [""])
sketch20.MapMode = "FlatFace"
sketch20.AttachmentOffset = App.Placement(V(0, 0, -2.5), App.Rotation())
sketch20.addGeometry([
    Part.Circle(V(-8, -154.4, 0), V(0, 0, 1), 1.6),
    Part.Circle(V(-8, -234.4, 0), V(0, 0, 1), 1.6),
], False)
sketch20.addConstraint([
    Sketcher.Constraint("Equal", 0, 1),
    Sketcher.Constraint("Vertical", 0, 3, 1, 3),
    Sketcher.Constraint("Diameter", 0, Q("3.2 mm")),
    Sketcher.Constraint("DistanceY", 1, 3, 0, 3, Q("80 mm")),
    Sketcher.Constraint("DistanceX", 0, 3, -1, 1, Q("8 mm")),
    Sketcher.Constraint("DistanceY", 0, 3, -1, 1, Q("154.4212 mm")),
])
pocket10 = body.newObject("PartDesign::Pocket", "Pocket009")
pocket10.Profile = sketch20
pocket10.Length = 2.5
pocket10.Reversed = True

sketch21 = body.newObject("Sketcher::SketchObject", "Sketch020")
sketch21.AttachmentSupport = (doc.getObject("XZ_Plane"), [""])
sketch21.MapMode = "FlatFace"
sketch21.addGeometry([
    Part.LineSegment(V(-13, -239, 0), V(-13, -150, 0)),
    Part.LineSegment(V(-13, -150, 0), V(-100, -150, 0)),
    Part.LineSegment(V(-100, -150, 0), V(-100, -239, 0)),
    Part.LineSegment(V(-100, -239, 0), V(-13, -239, 0)),
], False)
sketch21.addConstraint([
    Sketcher.Constraint("Coincident", 0, 2, 1, 1),
    Sketcher.Constraint("Coincident", 1, 2, 2, 1),
    Sketcher.Constraint("Coincident", 2, 2, 3, 1),
    Sketcher.Constraint("Coincident", 3, 2, 0, 1),
    Sketcher.Constraint("Vertical", 0),
    Sketcher.Constraint("Horizontal", 1),
    Sketcher.Constraint("Vertical", 2),
    Sketcher.Constraint("Horizontal", 3),
    Sketcher.Constraint("DistanceY", 2, 2, -1, 1, Q("239 mm")),
    Sketcher.Constraint("DistanceY", 0, 1, 0, 2, Q("88.94 mm")),
    Sketcher.Constraint("DistanceX", 0, 2, -1, 1, Q("12.63 mm")),
    Sketcher.Constraint("DistanceX", 1, 2, 1, 1, Q("87.2027 mm")),
])
pocket11 = body.newObject("PartDesign::Pocket", "Pocket010")
pocket11.Profile = sketch21
pocket11.Length = 10
doc.recompute()

fillet3 = body.newObject("PartDesign::Fillet", "Fillet002")
fillet3.Base = (pocket11, edges_at(pocket11, [
    (-110, 1.25, -250),
    (0, 1.25, -250),
    (-110, 1.25, -140),
    (-60, 1.25, 0),
    (0, 1.25, 0),
]))
fillet3.Radius = 2

sketch22 = body.newObject("Sketcher::SketchObject", "Sketch021")
sketch22.AttachmentSupport = (doc.getObject("XZ_Plane"), [""])
sketch22.MapMode = "FlatFace"
sketch22.addGeometry([
    Part.LineSegment(V(-6, -106, 0), V(-6, -57, 0)),
    Part.LineSegment(V(-6, -57, 0), V(-53, -57, 0)),
    Part.LineSegment(V(-53, -57, 0), V(-53, -106, 0)),
    Part.LineSegment(V(-53, -106, 0), V(-6, -106, 0)),
], False)
sketch22.addConstraint([
    Sketcher.Constraint("Coincident", 0, 2, 1, 1),
    Sketcher.Constraint("Coincident", 1, 2, 2, 1),
    Sketcher.Constraint("Coincident", 2, 2, 3, 1),
    Sketcher.Constraint("Coincident", 3, 2, 0, 1),
    Sketcher.Constraint("Vertical", 0),
    Sketcher.Constraint("Horizontal", 1),
    Sketcher.Constraint("Vertical", 2),
    Sketcher.Constraint("Horizontal", 3),
    Sketcher.Constraint("DistanceX", 0, 2, -1, 1, Q("6 mm")),
    Sketcher.Constraint("DistanceX", 1, 2, 1, 1, Q("47 mm")),
    Sketcher.Constraint("DistanceY", 0, 1, 0, 2, Q("49.393 mm")),
    Sketcher.Constraint("DistanceY", 0, 2, -1, 1, Q("56.5984 mm")),
])
pocket12 = body.newObject("PartDesign::Pocket", "Pocket011")
pocket12.Profile = sketch22
pocket12.Length = 10

doc.recompute()
